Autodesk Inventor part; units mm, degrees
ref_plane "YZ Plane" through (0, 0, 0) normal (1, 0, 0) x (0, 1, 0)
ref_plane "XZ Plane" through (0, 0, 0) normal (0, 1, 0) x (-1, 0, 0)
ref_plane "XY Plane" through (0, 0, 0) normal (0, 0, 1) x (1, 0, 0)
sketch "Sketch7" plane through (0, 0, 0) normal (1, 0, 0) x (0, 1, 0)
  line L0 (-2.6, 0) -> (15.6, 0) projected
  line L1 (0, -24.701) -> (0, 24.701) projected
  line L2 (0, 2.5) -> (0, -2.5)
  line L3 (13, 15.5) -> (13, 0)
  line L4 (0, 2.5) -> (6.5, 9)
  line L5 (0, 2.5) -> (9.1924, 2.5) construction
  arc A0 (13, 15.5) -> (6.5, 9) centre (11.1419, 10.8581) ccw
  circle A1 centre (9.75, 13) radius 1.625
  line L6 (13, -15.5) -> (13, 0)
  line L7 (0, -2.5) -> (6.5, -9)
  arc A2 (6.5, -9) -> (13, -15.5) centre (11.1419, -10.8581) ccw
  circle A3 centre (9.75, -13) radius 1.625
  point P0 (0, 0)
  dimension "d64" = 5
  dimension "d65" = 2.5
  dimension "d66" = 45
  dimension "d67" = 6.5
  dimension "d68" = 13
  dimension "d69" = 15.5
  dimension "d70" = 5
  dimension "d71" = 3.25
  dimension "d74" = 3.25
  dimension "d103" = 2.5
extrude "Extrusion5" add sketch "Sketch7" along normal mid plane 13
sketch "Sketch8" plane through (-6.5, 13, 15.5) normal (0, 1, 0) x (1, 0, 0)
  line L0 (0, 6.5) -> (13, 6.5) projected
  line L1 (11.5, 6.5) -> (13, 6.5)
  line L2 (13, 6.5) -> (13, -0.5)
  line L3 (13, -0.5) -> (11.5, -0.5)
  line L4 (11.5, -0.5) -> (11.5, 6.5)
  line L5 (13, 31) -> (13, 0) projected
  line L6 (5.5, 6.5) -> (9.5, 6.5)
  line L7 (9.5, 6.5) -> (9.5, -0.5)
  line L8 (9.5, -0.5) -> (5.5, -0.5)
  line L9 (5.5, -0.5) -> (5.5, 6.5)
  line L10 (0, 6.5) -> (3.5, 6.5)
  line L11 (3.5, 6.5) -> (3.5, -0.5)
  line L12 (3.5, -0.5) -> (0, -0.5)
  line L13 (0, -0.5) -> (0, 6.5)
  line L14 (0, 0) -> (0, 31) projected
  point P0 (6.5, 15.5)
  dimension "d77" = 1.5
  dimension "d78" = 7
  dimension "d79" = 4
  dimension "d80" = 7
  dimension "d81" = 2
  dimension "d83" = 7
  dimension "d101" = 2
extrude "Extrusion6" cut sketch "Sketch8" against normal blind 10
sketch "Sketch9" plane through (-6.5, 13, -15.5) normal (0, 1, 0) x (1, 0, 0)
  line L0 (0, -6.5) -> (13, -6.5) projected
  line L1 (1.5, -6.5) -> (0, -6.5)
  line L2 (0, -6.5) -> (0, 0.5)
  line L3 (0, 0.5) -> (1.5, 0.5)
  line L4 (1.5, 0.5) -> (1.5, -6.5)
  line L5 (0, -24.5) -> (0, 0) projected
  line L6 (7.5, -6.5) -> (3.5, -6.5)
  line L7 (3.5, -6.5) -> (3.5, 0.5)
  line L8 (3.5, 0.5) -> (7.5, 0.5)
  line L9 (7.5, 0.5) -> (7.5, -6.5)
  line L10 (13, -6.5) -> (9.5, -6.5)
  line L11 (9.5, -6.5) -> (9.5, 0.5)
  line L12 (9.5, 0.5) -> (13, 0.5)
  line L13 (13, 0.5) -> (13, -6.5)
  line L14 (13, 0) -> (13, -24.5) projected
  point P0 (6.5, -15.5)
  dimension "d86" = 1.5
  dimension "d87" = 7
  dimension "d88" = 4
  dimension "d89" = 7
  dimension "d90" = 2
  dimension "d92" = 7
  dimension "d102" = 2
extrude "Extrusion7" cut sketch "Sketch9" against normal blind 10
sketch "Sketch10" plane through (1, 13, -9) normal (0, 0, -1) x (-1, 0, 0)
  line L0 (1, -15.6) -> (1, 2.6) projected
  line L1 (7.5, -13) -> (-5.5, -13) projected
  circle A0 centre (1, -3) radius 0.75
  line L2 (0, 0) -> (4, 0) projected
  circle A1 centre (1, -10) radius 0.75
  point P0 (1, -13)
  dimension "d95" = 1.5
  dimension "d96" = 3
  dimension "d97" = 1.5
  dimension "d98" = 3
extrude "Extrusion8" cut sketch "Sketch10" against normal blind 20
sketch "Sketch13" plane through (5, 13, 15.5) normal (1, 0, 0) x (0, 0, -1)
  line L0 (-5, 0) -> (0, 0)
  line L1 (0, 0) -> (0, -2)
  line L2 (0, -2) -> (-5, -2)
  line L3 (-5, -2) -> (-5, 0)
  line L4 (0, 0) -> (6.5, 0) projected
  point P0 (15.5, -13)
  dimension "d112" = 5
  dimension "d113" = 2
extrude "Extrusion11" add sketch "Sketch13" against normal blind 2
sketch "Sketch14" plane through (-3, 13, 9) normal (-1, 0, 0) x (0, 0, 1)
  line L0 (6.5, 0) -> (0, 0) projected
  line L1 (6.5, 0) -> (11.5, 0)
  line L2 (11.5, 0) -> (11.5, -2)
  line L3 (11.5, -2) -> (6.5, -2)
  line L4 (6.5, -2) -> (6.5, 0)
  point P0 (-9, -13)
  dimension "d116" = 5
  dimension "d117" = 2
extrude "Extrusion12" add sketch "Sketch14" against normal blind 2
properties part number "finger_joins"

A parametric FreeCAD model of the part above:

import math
import FreeCAD as App
import Part
import Sketcher

V = App.Vector
Q = App.Units.Quantity

doc = App.newDocument("Part")
params = doc.addObject("Spreadsheet::Sheet", "Params")
for row, (alias, value) in enumerate([
    ("sketch1_radius", "5 mm"),
    ("sketch1_diameter", "3.25 mm"),
    ("sketch1_height", "5 mm"),
    ("pad1_length", "13 mm"),
    ("sketch2_width", "4 mm"),
    ("sketch2_height", "7 mm"),
    ("sketch2_width2", "1.5 mm"),
    ("pocket1_length", "10 mm"),
    ("sketch3_width", "4 mm"),
    ("sketch3_height", "7 mm"),
    ("sketch3_width2", "1.5 mm"),
    ("pocket2_length", "10 mm"),
    ("sketch4_diameter", "1.5 mm"),
    ("pocket3_length", "20 mm"),
    ("sketch5_width", "2 mm"),
    ("sketch5_height", "5 mm"),
    ("pad2_length", "2 mm"),
    ("sketch6_width", "2 mm"),
    ("sketch6_height", "5 mm"),
    ("pad3_length", "2 mm"),
], start=1):
    params.set(f"A{row}", alias)
    params.set(f"B{row}", "=" + value)
    params.setAlias(f"B{row}", alias)

body = doc.addObject("PartDesign::Body", "Body")

# Sketch on YZ plane
sketch1 = body.newObject("Sketcher::SketchObject", "Sketch")
sketch1.AttachmentSupport = (doc.getObject("YZ_Plane"), [""])
sketch1.MapMode = "FlatFace"
sketch1.addGeometry([
    Part.LineSegment(V(0, 2.5, 0), V(0, -2.5, 0)),  # 0
    Part.LineSegment(V(0, -2.5, 0), V(6.5, -9, 0)),  # 1
    Part.ArcOfCircle(Part.Circle(V(11.1, -10.9, 0), V(0, 0, 1), 5), math.radians(158), math.radians(292)),  # 2
    Part.LineSegment(V(13, -15.5, 0), V(13, 15.5, 0)),  # 3
    Part.ArcOfCircle(Part.Circle(V(11.1, 10.9, 0), V(0, 0, 1), 5), math.radians(68), math.radians(202)),  # 4
    Part.LineSegment(V(6.5, 9, 0), V(0, 2.5, 0)),  # 5
    Part.Circle(V(9.8, 13, 0), V(0, 0, 1), 1.6),  # 6
    Part.Circle(V(9.8, -13, 0), V(0, 0, 1), 1.6),  # 7
], False)
sketch1.addConstraint([
    Sketcher.Constraint("Coincident", 0, 2, 1, 1),
    Sketcher.Constraint("Coincident", 1, 2, 2, 1),
    Sketcher.Constraint("Coincident", 2, 2, 3, 1),
    Sketcher.Constraint("Coincident", 3, 2, 4, 1),
    Sketcher.Constraint("Coincident", 4, 2, 5, 1),
    Sketcher.Constraint("Coincident", 5, 2, 0, 1),
    Sketcher.Constraint("Vertical", 0),
    Sketcher.Constraint("Vertical", 3),
    Sketcher.Constraint("Equal", 2, 4),
    Sketcher.Constraint("Equal", 6, 7),
    Sketcher.Constraint("Symmetric", 0, 2, 5, 2, -1, 1),
    Sketcher.Constraint("Symmetric", 2, 3, 4, 3, -1),
    Sketcher.Constraint("Symmetric", 6, 3, 7, 3, -1),
    Sketcher.Constraint("Perpendicular", 1, 5),
    Sketcher.Constraint("Vertical", 1, 2, 4, 2),
    Sketcher.Constraint("Radius", 2, Q("5 mm")),
    Sketcher.Constraint("Diameter", 6, Q("3.25 mm")),
    Sketcher.Constraint("DistanceY", 0, 2, 0, 1, Q("5 mm")),
    Sketcher.Constraint("DistanceY", -1, 1, 6, 3, Q("13 mm")),
    Sketcher.Constraint("DistanceX", -1, 1, 2, 2, Q("13 mm")),
    Sketcher.Constraint("DistanceY", 2, 2, 0, 2, Q("13 mm")),
    Sketcher.Constraint("DistanceX", -1, 1, 1, 2, Q("6.5 mm")),
    Sketcher.Constraint("DistanceX", 1, 2, 7, 3, Q("3.25 mm")),
])
sketch1.setExpression("Constraints[15]", "Params.sketch1_radius")
sketch1.setExpression("Constraints[16]", "Params.sketch1_diameter")
sketch1.setExpression("Constraints[17]", "Params.sketch1_height")
pad1 = body.newObject("PartDesign::Pad", "Pad")
pad1.Profile = sketch1
pad1.setExpression("Length", "Params.pad1_length")
pad1.Midplane = True

# Sketch on XZ plane
sketch2 = body.newObject("Sketcher::SketchObject", "Sketch001")
sketch2.AttachmentSupport = (doc.getObject("XZ_Plane"), [""])
sketch2.MapMode = "FlatFace"
sketch2.AttachmentOffset = App.Placement(V(0, 0, -13), App.Rotation())
sketch2.addGeometry([
    Part.LineSegment(V(6.5, 9, 0), V(5, 9, 0)),  # 0
    Part.LineSegment(V(5, 9, 0), V(5, 16, 0)),  # 1
    Part.LineSegment(V(5, 16, 0), V(6.5, 16, 0)),  # 2
    Part.LineSegment(V(6.5, 16, 0), V(6.5, 9, 0)),  # 3
    Part.LineSegment(V(3, 9, 0), V(-1, 9, 0)),  # 4
    Part.LineSegment(V(-1, 9, 0), V(-1, 16, 0)),  # 5
    Part.LineSegment(V(-1, 16, 0), V(3, 16, 0)),  # 6
    Part.LineSegment(V(3, 16, 0), V(3, 9, 0)),  # 7
    Part.LineSegment(V(-3, 9, 0), V(-6.5, 9, 0)),  # 8
    Part.LineSegment(V(-6.5, 9, 0), V(-6.5, 16, 0)),  # 9
    Part.LineSegment(V(-6.5, 16, 0), V(-3, 16, 0)),  # 10
    Part.LineSegment(V(-3, 16, 0), V(-3, 9, 0)),  # 11
], False)
sketch2.addConstraint([
    Sketcher.Constraint("Coincident", 0, 2, 1, 1),
    Sketcher.Constraint("Coincident", 1, 2, 2, 1),
    Sketcher.Constraint("Coincident", 2, 2, 3, 1),
    Sketcher.Constraint("Coincident", 3, 2, 0, 1),
    Sketcher.Constraint("Coincident", 4, 2, 5, 1),
    Sketcher.Constraint("Coincident", 5, 2, 6, 1),
    Sketcher.Constraint("Coincident", 6, 2, 7, 1),
    Sketcher.Constraint("Coincident", 7, 2, 4, 1),
    Sketcher.Constraint("Coincident", 8, 2, 9, 1),
    Sketcher.Constraint("Coincident", 9, 2, 10, 1),
    Sketcher.Constraint("Coincident", 10, 2, 11, 1),
    Sketcher.Constraint("Coincident", 11, 2, 8, 1),
    Sketcher.Constraint("Horizontal", 0),
    Sketcher.Constraint("Vertical", 1),
    Sketcher.Constraint("Horizontal", 2),
    Sketcher.Constraint("Vertical", 3),
    Sketcher.Constraint("Horizontal", 4),
    Sketcher.Constraint("Vertical", 5),
    Sketcher.Constraint("Horizontal", 6),
    Sketcher.Constraint("Vertical", 7),
    Sketcher.Constraint("Horizontal", 8),
    Sketcher.Constraint("Vertical", 9),
    Sketcher.Constraint("Horizontal", 10),
    Sketcher.Constraint("Vertical", 11),
    Sketcher.Constraint("Symmetric", 3, 2, 8, 2, -2),
    Sketcher.Constraint("Symmetric", 6, 2, 10, 2, -2),
    Sketcher.Constraint("Horizontal", 3, 2, 4, 2),
    Sketcher.Constraint("Horizontal", 2, 2, 5, 2),
    Sketcher.Constraint("DistanceX", 4, 2, 4, 1, Q("4 mm")),
    Sketcher.Constraint("DistanceY", 1, 1, 1, 2, Q("7 mm")),
    Sketcher.Constraint("DistanceX", 0, 2, 0, 1, Q("1.5 mm")),
    Sketcher.Constraint("DistanceX", 6, 2, 1, 2, Q("2 mm")),
    Sketcher.Constraint("DistanceX", 10, 2, 5, 2, Q("2 mm")),
    Sketcher.Constraint("DistanceY", -1, 1, 0, 2, Q("9 mm")),
])
sketch2.setExpression("Constraints[28]", "Params.sketch2_width")
sketch2.setExpression("Constraints[29]", "Params.sketch2_height")
sketch2.setExpression("Constraints[30]", "Params.sketch2_width2")
pocket1 = body.newObject("PartDesign::Pocket", "Pocket")
pocket1.Profile = sketch2
pocket1.setExpression("Length", "Params.pocket1_length")
pocket1.Reversed = True

# Sketch on XZ plane
sketch3 = body.newObject("Sketcher::SketchObject", "Sketch002")
sketch3.AttachmentSupport = (doc.getObject("XZ_Plane"), [""])
sketch3.MapMode = "FlatFace"
sketch3.AttachmentOffset = App.Placement(V(0, 0, -13), App.Rotation())
sketch3.addGeometry([
    Part.LineSegment(V(-6.5, -16, 0), V(-6.5, -9, 0)),  # 0
    Part.LineSegment(V(-6.5, -9, 0), V(-5, -9, 0)),  # 1
    Part.LineSegment(V(-5, -9, 0), V(-5, -16, 0)),  # 2
    Part.LineSegment(V(-5, -16, 0), V(-6.5, -16, 0)),  # 3
    Part.LineSegment(V(3, -16, 0), V(3, -9, 0)),  # 4
    Part.LineSegment(V(3, -9, 0), V(6.5, -9, 0)),  # 5
    Part.LineSegment(V(6.5, -9, 0), V(6.5, -16, 0)),  # 6
    Part.LineSegment(V(6.5, -16, 0), V(3, -16, 0)),  # 7
    Part.LineSegment(V(-3, -16, 0), V(-3, -9, 0)),  # 8
    Part.LineSegment(V(-3, -9, 0), V(1, -9, 0)),  # 9
    Part.LineSegment(V(1, -9, 0), V(1, -16, 0)),  # 10
    Part.LineSegment(V(1, -16, 0), V(-3, -16, 0)),  # 11
], False)
sketch3.addConstraint([
    Sketcher.Constraint("Coincident", 0, 2, 1, 1),
    Sketcher.Constraint("Coincident", 1, 2, 2, 1),
    Sketcher.Constraint("Coincident", 2, 2, 3, 1),
    Sketcher.Constraint("Coincident", 3, 2, 0, 1),
    Sketcher.Constraint("Coincident", 4, 2, 5, 1),
    Sketcher.Constraint("Coincident", 5, 2, 6, 1),
    Sketcher.Constraint("Coincident", 6, 2, 7, 1),
    Sketcher.Constraint("Coincident", 7, 2, 4, 1),
    Sketcher.Constraint("Coincident", 8, 2, 9, 1),
    Sketcher.Constraint("Coincident", 9, 2, 10, 1),
    Sketcher.Constraint("Coincident", 10, 2, 11, 1),
    Sketcher.Constraint("Coincident", 11, 2, 8, 1),
    Sketcher.Constraint("Vertical", 0),
    Sketcher.Constraint("Horizontal", 1),
    Sketcher.Constraint("Vertical", 2),
    Sketcher.Constraint("Horizontal", 3),
    Sketcher.Constraint("Vertical", 4),
    Sketcher.Constraint("Horizontal", 5),
    Sketcher.Constraint("Vertical", 6),
    Sketcher.Constraint("Horizontal", 7),
    Sketcher.Constraint("Vertical", 8),
    Sketcher.Constraint("Horizontal", 9),
    Sketcher.Constraint("Vertical", 10),
    Sketcher.Constraint("Horizontal", 11),
    Sketcher.Constraint("Symmetric", 0, 2, 5, 2, -2),
    Sketcher.Constraint("Symmetric", 4, 2, 8, 2, -2),
    Sketcher.Constraint("Horizontal", 3, 2, 6, 2),
    Sketcher.Constraint("Horizontal", 7, 2, 10, 2),
    Sketcher.Constraint("DistanceX", 9, 1, 9, 2, Q("4 mm")),
    Sketcher.Constraint("DistanceY", 0, 1, 0, 2, Q("7 mm")),
    Sketcher.Constraint("DistanceX", 1, 1, 1, 2, Q("1.5 mm")),
    Sketcher.Constraint("DistanceX", 1, 2, 8, 2, Q("2 mm")),
    Sketcher.Constraint("DistanceX", 9, 2, 4, 2, Q("2 mm")),
    Sketcher.Constraint("DistanceY", 0, 2, -1, 1, Q("9 mm")),
])
sketch3.setExpression("Constraints[28]", "Params.sketch3_width")
sketch3.setExpression("Constraints[29]", "Params.sketch3_height")
sketch3.setExpression("Constraints[30]", "Params.sketch3_width2")
pocket2 = body.newObject("PartDesign::Pocket", "Pocket001")
pocket2.Profile = sketch3
pocket2.setExpression("Length", "Params.pocket2_length")
pocket2.Reversed = True

# Sketch on XY plane
sketch4 = body.newObject("Sketcher::SketchObject", "Sketch003")
sketch4.AttachmentSupport = (doc.getObject("XY_Plane"), [""])
sketch4.MapMode = "FlatFace"
sketch4.AttachmentOffset = App.Placement(V(0, 0, -9), App.Rotation())
sketch4.addGeometry([
    Part.Circle(V(0, 3, 0), V(0, 0, 1), 0.8),
    Part.Circle(V(0, 10, 0), V(0, 0, 1), 0.8),
], False)
sketch4.addConstraint([
    Sketcher.Constraint("Equal", 0, 1),
    Sketcher.Constraint("PointOnObject", 0, 3, -2),
    Sketcher.Constraint("PointOnObject", 1, 3, -2),
    Sketcher.Constraint("Diameter", 0, Q("1.5 mm")),
    Sketcher.Constraint("DistanceY", -1, 1, 0, 3, Q("3 mm")),
    Sketcher.Constraint("DistanceY", -1, 1, 1, 3, Q("10 mm")),
])
sketch4.setExpression("Constraints[3]", "Params.sketch4_diameter")
pocket3 = body.newObject("PartDesign::Pocket", "Pocket002")
pocket3.Profile = sketch4
pocket3.setExpression("Length", "Params.pocket3_length")
pocket3.Reversed = True

# Sketch on YZ plane
sketch5 = body.newObject("Sketcher::SketchObject", "Sketch004")
sketch5.AttachmentSupport = (doc.getObject("YZ_Plane"), [""])
sketch5.MapMode = "FlatFace"
sketch5.AttachmentOffset = App.Placement(V(0, 0, 5), App.Rotation())
sketch5.addGeometry([
    Part.LineSegment(V(13, 15.5, 0), V(13, 20.5, 0)),
    Part.LineSegment(V(13, 20.5, 0), V(11, 20.5, 0)),
    Part.LineSegment(V(11, 20.5, 0), V(11, 15.5, 0)),
    Part.LineSegment(V(11, 15.5, 0), V(13, 15.5, 0)),
], False)
sketch5.addConstraint([
    Sketcher.Constraint("Coincident", 0, 2, 1, 1),
    Sketcher.Constraint("Coincident", 1, 2, 2, 1),
    Sketcher.Constraint("Coincident", 2, 2, 3, 1),
    Sketcher.Constraint("Coincident", 3, 2, 0, 1),
    Sketcher.Constraint("Vertical", 0),
    Sketcher.Constraint("Horizontal", 1),
    Sketcher.Constraint("Vertical", 2),
    Sketcher.Constraint("Horizontal", 3),
    Sketcher.Constraint("DistanceX", 1, 2, 1, 1, Q("2 mm")),
    Sketcher.Constraint("DistanceY", 0, 1, 0, 2, Q("5 mm")),
    Sketcher.Constraint("DistanceX", -1, 1, 0, 2, Q("13 mm")),
    Sketcher.Constraint("DistanceY", -1, 1, 0, 2, Q("20.5 mm")),
])
sketch5.setExpression("Constraints[8]", "Params.sketch5_width")
sketch5.setExpression("Constraints[9]", "Params.sketch5_height")
pad2 = body.newObject("PartDesign::Pad", "Pad001")
pad2.Profile = sketch5
pad2.setExpression("Length", "Params.pad2_length")
pad2.Reversed = True

# Sketch on YZ plane
sketch6 = body.newObject("Sketcher::SketchObject", "Sketch005")
sketch6.AttachmentSupport = (doc.getObject("YZ_Plane"), [""])
sketch6.MapMode = "FlatFace"
sketch6.AttachmentOffset = App.Placement(V(0, 0, -3), App.Rotation())
sketch6.addGeometry([
    Part.LineSegment(V(13, 20.5, 0), V(13, 15.5, 0)),
    Part.LineSegment(V(13, 15.5, 0), V(11, 15.5, 0)),
    Part.LineSegment(V(11, 15.5, 0), V(11, 20.5, 0)),
    Part.LineSegment(V(11, 20.5, 0), V(13, 20.5, 0)),
], False)
sketch6.addConstraint([
    Sketcher.Constraint("Coincident", 0, 2, 1, 1),
    Sketcher.Constraint("Coincident", 1, 2, 2, 1),
    Sketcher.Constraint("Coincident", 2, 2, 3, 1),
    Sketcher.Constraint("Coincident", 3, 2, 0, 1),
    Sketcher.Constraint("Vertical", 0),
    Sketcher.Constraint("Horizontal", 1),
    Sketcher.Constraint("Vertical", 2),
    Sketcher.Constraint("Horizontal", 3),
    Sketcher.Constraint("DistanceX", 1, 2, 1, 1, Q("2 mm")),
    Sketcher.Constraint("DistanceY", 0, 2, 0, 1, Q("5 mm")),
    Sketcher.Constraint("DistanceX", -1, 1, 0, 2, Q("13 mm")),
    Sketcher.Constraint("DistanceY", -1, 1, 0, 2, Q("15.5 mm")),
])
sketch6.setExpression("Constraints[8]", "Params.sketch6_width")
sketch6.setExpression("Constraints[9]", "Params.sketch6_height")
pad3 = body.newObject("PartDesign::Pad", "Pad002")
pad3.Profile = sketch6
pad3.setExpression("Length", "Params.pad3_length")

doc.recompute()
